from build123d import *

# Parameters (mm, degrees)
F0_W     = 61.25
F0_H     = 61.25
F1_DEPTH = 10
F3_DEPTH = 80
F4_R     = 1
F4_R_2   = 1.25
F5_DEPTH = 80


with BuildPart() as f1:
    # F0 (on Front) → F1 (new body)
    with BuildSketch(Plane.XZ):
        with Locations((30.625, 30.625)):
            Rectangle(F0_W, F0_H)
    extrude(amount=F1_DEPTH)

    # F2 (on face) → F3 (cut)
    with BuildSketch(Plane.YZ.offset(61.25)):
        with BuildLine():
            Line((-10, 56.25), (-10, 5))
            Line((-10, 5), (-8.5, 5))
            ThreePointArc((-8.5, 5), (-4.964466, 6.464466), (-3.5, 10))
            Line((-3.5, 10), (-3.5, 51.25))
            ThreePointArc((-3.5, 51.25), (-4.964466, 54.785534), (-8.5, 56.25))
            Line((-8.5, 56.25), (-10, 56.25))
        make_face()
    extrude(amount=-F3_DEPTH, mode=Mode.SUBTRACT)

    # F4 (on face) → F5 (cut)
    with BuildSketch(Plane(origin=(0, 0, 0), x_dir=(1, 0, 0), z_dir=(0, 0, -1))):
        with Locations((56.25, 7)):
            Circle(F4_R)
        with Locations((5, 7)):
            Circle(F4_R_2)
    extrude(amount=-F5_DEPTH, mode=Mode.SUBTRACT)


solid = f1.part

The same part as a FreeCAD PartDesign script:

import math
import FreeCAD as App
import Part
import Sketcher

doc = App.newDocument("Part")
body = doc.addObject("PartDesign::Body", "Body")

# Sketch on XZ plane
sketch1 = doc.addObject("Sketcher::SketchObject", "Sketch")
body.addObject(sketch1)
sketch1.AttachmentSupport = (doc.XZ_Plane, [""])
sketch1.MapMode = "FlatFace"
sketch1.addGeometry(Part.LineSegment(App.Vector(0, 61.25, 0), App.Vector(0, 0, 0)), False)
sketch1.addGeometry(Part.LineSegment(App.Vector(0, 0, 0), App.Vector(61.25, 0, 0)), False)
sketch1.addGeometry(Part.LineSegment(App.Vector(61.25, 0, 0), App.Vector(61.25, 61.25, 0)), False)
sketch1.addGeometry(Part.LineSegment(App.Vector(61.25, 61.25, 0), App.Vector(0, 61.25, 0)), False)
sketch1.addConstraint(Sketcher.Constraint("Coincident", 0, 2, 1, 1))
sketch1.addConstraint(Sketcher.Constraint("Coincident", 1, 2, 2, 1))
sketch1.addConstraint(Sketcher.Constraint("Coincident", 2, 2, 3, 1))
sketch1.addConstraint(Sketcher.Constraint("Coincident", 3, 2, 0, 1))
sketch1.addConstraint(Sketcher.Constraint("Vertical", 0))
sketch1.addConstraint(Sketcher.Constraint("Horizontal", 1))
sketch1.addConstraint(Sketcher.Constraint("Vertical", 2))
sketch1.addConstraint(Sketcher.Constraint("Horizontal", 3))
sketch1.addConstraint(Sketcher.Constraint("Coincident", 0, 2, -1, 1))
sketch1.addConstraint(Sketcher.Constraint("Equal", 3, 0))
sketch1.addConstraint(Sketcher.Constraint("DistanceX", 1, 1, 1, 2, 61.25))
pad1 = doc.addObject("PartDesign::Pad", "Pad")
body.addObject(pad1)
pad1.Profile = sketch1
pad1.Length = 10

# Sketch on YZ plane
sketch2 = doc.addObject("Sketcher::SketchObject", "Sketch001")
body.addObject(sketch2)
sketch2.AttachmentSupport = (doc.YZ_Plane, [""])
sketch2.MapMode = "FlatFace"
sketch2.AttachmentOffset = App.Placement(App.Vector(0, 0, 61.25), App.Rotation())
sketch2.addGeometry(Part.LineSegment(App.Vector(-10, 56.25, 0), App.Vector(-10, 5, 0)), False)
sketch2.addGeometry(Part.LineSegment(App.Vector(-10, 5, 0), App.Vector(-8.5, 5, 0)), False)
sketch2.addGeometry(Part.ArcOfCircle(Part.Circle(App.Vector(-8.5, 10, 0), App.Vector(0, 0, 1), 5), math.radians(-90.000004), math.radians(0.000004)), False)
sketch2.addGeometry(Part.LineSegment(App.Vector(-3.5, 10, 0), App.Vector(-3.5, 51.25, 0)), False)
sketch2.addGeometry(Part.ArcOfCircle(Part.Circle(App.Vector(-8.5, 51.25, 0), App.Vector(0, 0, 1), 5), math.radians(-0.000004), math.radians(90.000004)), False)
sketch2.addGeometry(Part.LineSegment(App.Vector(-8.5, 56.25, 0), App.Vector(-10, 56.25, 0)), False)
sketch2.addConstraint(Sketcher.Constraint("Coincident", 0, 2, 1, 1))
sketch2.addConstraint(Sketcher.Constraint("Tangent", 1, 2, 2, 1))
sketch2.addConstraint(Sketcher.Constraint("Tangent", 2, 2, 3, 1))
sketch2.addConstraint(Sketcher.Constraint("Tangent", 3, 2, 4, 1))
sketch2.addConstraint(Sketcher.Constraint("Tangent", 4, 2, 5, 1))
sketch2.addConstraint(Sketcher.Constraint("Coincident", 5, 2, 0, 1))
sketch2.addConstraint(Sketcher.Constraint("Vertical", 0))
sketch2.addConstraint(Sketcher.Constraint("Horizontal", 1))
sketch2.addConstraint(Sketcher.Constraint("Vertical", 3))
sketch2.addConstraint(Sketcher.Constraint("Horizontal", 5))
sketch2.addConstraint(Sketcher.Constraint("Equal", 2, 4))
sketch2.addConstraint(Sketcher.Constraint("Radius", 2, 5.0))
sketch2.addConstraint(Sketcher.Constraint("DistanceX", 1, 1, 1, 2, 1.5))
sketch2.addConstraint(Sketcher.Constraint("DistanceY", -1, 1, 2, 3, 10.0))
sketch2.addConstraint(Sketcher.Constraint("DistanceX", 0, 2, -1, 1, 10.0))
sketch2.addConstraint(Sketcher.Constraint("DistanceY", 0, 2, 0, 1, 51.25))
pocket1 = doc.addObject("PartDesign::Pocket", "Pocket")
body.addObject(pocket1)
pocket1.Profile = sketch2
pocket1.Length = 80

# Sketch on XY plane
sketch3 = doc.addObject("Sketcher::SketchObject", "Sketch002")
body.addObject(sketch3)
sketch3.AttachmentSupport = (doc.XY_Plane, [""])
sketch3.MapMode = "FlatFace"
sketch3.addGeometry(Part.Circle(App.Vector(56.25, -7, 0), App.Vector(0, 0, 1), 1), False)
sketch3.addGeometry(Part.Circle(App.Vector(5, -7, 0), App.Vector(0, 0, 1), 1.25), False)
sketch3.addConstraint(Sketcher.Constraint("Horizontal", 0, 3, 1, 3))
sketch3.addConstraint(Sketcher.Constraint("Diameter", 0, 2.0))
sketch3.addConstraint(Sketcher.Constraint("Diameter", 1, 2.5))
sketch3.addConstraint(Sketcher.Constraint("DistanceY", 0, 3, -1, 1, 7.0))
sketch3.addConstraint(Sketcher.Constraint("DistanceX", -1, 1, 1, 3, 5.0))
sketch3.addConstraint(Sketcher.Constraint("DistanceX", -1, 1, 0, 3, 56.25))
pocket2 = doc.addObject("PartDesign::Pocket", "Pocket001")
body.addObject(pocket2)
pocket2.Profile = sketch3
pocket2.Length = 80
pocket2.Reversed = True

doc.recompute()
